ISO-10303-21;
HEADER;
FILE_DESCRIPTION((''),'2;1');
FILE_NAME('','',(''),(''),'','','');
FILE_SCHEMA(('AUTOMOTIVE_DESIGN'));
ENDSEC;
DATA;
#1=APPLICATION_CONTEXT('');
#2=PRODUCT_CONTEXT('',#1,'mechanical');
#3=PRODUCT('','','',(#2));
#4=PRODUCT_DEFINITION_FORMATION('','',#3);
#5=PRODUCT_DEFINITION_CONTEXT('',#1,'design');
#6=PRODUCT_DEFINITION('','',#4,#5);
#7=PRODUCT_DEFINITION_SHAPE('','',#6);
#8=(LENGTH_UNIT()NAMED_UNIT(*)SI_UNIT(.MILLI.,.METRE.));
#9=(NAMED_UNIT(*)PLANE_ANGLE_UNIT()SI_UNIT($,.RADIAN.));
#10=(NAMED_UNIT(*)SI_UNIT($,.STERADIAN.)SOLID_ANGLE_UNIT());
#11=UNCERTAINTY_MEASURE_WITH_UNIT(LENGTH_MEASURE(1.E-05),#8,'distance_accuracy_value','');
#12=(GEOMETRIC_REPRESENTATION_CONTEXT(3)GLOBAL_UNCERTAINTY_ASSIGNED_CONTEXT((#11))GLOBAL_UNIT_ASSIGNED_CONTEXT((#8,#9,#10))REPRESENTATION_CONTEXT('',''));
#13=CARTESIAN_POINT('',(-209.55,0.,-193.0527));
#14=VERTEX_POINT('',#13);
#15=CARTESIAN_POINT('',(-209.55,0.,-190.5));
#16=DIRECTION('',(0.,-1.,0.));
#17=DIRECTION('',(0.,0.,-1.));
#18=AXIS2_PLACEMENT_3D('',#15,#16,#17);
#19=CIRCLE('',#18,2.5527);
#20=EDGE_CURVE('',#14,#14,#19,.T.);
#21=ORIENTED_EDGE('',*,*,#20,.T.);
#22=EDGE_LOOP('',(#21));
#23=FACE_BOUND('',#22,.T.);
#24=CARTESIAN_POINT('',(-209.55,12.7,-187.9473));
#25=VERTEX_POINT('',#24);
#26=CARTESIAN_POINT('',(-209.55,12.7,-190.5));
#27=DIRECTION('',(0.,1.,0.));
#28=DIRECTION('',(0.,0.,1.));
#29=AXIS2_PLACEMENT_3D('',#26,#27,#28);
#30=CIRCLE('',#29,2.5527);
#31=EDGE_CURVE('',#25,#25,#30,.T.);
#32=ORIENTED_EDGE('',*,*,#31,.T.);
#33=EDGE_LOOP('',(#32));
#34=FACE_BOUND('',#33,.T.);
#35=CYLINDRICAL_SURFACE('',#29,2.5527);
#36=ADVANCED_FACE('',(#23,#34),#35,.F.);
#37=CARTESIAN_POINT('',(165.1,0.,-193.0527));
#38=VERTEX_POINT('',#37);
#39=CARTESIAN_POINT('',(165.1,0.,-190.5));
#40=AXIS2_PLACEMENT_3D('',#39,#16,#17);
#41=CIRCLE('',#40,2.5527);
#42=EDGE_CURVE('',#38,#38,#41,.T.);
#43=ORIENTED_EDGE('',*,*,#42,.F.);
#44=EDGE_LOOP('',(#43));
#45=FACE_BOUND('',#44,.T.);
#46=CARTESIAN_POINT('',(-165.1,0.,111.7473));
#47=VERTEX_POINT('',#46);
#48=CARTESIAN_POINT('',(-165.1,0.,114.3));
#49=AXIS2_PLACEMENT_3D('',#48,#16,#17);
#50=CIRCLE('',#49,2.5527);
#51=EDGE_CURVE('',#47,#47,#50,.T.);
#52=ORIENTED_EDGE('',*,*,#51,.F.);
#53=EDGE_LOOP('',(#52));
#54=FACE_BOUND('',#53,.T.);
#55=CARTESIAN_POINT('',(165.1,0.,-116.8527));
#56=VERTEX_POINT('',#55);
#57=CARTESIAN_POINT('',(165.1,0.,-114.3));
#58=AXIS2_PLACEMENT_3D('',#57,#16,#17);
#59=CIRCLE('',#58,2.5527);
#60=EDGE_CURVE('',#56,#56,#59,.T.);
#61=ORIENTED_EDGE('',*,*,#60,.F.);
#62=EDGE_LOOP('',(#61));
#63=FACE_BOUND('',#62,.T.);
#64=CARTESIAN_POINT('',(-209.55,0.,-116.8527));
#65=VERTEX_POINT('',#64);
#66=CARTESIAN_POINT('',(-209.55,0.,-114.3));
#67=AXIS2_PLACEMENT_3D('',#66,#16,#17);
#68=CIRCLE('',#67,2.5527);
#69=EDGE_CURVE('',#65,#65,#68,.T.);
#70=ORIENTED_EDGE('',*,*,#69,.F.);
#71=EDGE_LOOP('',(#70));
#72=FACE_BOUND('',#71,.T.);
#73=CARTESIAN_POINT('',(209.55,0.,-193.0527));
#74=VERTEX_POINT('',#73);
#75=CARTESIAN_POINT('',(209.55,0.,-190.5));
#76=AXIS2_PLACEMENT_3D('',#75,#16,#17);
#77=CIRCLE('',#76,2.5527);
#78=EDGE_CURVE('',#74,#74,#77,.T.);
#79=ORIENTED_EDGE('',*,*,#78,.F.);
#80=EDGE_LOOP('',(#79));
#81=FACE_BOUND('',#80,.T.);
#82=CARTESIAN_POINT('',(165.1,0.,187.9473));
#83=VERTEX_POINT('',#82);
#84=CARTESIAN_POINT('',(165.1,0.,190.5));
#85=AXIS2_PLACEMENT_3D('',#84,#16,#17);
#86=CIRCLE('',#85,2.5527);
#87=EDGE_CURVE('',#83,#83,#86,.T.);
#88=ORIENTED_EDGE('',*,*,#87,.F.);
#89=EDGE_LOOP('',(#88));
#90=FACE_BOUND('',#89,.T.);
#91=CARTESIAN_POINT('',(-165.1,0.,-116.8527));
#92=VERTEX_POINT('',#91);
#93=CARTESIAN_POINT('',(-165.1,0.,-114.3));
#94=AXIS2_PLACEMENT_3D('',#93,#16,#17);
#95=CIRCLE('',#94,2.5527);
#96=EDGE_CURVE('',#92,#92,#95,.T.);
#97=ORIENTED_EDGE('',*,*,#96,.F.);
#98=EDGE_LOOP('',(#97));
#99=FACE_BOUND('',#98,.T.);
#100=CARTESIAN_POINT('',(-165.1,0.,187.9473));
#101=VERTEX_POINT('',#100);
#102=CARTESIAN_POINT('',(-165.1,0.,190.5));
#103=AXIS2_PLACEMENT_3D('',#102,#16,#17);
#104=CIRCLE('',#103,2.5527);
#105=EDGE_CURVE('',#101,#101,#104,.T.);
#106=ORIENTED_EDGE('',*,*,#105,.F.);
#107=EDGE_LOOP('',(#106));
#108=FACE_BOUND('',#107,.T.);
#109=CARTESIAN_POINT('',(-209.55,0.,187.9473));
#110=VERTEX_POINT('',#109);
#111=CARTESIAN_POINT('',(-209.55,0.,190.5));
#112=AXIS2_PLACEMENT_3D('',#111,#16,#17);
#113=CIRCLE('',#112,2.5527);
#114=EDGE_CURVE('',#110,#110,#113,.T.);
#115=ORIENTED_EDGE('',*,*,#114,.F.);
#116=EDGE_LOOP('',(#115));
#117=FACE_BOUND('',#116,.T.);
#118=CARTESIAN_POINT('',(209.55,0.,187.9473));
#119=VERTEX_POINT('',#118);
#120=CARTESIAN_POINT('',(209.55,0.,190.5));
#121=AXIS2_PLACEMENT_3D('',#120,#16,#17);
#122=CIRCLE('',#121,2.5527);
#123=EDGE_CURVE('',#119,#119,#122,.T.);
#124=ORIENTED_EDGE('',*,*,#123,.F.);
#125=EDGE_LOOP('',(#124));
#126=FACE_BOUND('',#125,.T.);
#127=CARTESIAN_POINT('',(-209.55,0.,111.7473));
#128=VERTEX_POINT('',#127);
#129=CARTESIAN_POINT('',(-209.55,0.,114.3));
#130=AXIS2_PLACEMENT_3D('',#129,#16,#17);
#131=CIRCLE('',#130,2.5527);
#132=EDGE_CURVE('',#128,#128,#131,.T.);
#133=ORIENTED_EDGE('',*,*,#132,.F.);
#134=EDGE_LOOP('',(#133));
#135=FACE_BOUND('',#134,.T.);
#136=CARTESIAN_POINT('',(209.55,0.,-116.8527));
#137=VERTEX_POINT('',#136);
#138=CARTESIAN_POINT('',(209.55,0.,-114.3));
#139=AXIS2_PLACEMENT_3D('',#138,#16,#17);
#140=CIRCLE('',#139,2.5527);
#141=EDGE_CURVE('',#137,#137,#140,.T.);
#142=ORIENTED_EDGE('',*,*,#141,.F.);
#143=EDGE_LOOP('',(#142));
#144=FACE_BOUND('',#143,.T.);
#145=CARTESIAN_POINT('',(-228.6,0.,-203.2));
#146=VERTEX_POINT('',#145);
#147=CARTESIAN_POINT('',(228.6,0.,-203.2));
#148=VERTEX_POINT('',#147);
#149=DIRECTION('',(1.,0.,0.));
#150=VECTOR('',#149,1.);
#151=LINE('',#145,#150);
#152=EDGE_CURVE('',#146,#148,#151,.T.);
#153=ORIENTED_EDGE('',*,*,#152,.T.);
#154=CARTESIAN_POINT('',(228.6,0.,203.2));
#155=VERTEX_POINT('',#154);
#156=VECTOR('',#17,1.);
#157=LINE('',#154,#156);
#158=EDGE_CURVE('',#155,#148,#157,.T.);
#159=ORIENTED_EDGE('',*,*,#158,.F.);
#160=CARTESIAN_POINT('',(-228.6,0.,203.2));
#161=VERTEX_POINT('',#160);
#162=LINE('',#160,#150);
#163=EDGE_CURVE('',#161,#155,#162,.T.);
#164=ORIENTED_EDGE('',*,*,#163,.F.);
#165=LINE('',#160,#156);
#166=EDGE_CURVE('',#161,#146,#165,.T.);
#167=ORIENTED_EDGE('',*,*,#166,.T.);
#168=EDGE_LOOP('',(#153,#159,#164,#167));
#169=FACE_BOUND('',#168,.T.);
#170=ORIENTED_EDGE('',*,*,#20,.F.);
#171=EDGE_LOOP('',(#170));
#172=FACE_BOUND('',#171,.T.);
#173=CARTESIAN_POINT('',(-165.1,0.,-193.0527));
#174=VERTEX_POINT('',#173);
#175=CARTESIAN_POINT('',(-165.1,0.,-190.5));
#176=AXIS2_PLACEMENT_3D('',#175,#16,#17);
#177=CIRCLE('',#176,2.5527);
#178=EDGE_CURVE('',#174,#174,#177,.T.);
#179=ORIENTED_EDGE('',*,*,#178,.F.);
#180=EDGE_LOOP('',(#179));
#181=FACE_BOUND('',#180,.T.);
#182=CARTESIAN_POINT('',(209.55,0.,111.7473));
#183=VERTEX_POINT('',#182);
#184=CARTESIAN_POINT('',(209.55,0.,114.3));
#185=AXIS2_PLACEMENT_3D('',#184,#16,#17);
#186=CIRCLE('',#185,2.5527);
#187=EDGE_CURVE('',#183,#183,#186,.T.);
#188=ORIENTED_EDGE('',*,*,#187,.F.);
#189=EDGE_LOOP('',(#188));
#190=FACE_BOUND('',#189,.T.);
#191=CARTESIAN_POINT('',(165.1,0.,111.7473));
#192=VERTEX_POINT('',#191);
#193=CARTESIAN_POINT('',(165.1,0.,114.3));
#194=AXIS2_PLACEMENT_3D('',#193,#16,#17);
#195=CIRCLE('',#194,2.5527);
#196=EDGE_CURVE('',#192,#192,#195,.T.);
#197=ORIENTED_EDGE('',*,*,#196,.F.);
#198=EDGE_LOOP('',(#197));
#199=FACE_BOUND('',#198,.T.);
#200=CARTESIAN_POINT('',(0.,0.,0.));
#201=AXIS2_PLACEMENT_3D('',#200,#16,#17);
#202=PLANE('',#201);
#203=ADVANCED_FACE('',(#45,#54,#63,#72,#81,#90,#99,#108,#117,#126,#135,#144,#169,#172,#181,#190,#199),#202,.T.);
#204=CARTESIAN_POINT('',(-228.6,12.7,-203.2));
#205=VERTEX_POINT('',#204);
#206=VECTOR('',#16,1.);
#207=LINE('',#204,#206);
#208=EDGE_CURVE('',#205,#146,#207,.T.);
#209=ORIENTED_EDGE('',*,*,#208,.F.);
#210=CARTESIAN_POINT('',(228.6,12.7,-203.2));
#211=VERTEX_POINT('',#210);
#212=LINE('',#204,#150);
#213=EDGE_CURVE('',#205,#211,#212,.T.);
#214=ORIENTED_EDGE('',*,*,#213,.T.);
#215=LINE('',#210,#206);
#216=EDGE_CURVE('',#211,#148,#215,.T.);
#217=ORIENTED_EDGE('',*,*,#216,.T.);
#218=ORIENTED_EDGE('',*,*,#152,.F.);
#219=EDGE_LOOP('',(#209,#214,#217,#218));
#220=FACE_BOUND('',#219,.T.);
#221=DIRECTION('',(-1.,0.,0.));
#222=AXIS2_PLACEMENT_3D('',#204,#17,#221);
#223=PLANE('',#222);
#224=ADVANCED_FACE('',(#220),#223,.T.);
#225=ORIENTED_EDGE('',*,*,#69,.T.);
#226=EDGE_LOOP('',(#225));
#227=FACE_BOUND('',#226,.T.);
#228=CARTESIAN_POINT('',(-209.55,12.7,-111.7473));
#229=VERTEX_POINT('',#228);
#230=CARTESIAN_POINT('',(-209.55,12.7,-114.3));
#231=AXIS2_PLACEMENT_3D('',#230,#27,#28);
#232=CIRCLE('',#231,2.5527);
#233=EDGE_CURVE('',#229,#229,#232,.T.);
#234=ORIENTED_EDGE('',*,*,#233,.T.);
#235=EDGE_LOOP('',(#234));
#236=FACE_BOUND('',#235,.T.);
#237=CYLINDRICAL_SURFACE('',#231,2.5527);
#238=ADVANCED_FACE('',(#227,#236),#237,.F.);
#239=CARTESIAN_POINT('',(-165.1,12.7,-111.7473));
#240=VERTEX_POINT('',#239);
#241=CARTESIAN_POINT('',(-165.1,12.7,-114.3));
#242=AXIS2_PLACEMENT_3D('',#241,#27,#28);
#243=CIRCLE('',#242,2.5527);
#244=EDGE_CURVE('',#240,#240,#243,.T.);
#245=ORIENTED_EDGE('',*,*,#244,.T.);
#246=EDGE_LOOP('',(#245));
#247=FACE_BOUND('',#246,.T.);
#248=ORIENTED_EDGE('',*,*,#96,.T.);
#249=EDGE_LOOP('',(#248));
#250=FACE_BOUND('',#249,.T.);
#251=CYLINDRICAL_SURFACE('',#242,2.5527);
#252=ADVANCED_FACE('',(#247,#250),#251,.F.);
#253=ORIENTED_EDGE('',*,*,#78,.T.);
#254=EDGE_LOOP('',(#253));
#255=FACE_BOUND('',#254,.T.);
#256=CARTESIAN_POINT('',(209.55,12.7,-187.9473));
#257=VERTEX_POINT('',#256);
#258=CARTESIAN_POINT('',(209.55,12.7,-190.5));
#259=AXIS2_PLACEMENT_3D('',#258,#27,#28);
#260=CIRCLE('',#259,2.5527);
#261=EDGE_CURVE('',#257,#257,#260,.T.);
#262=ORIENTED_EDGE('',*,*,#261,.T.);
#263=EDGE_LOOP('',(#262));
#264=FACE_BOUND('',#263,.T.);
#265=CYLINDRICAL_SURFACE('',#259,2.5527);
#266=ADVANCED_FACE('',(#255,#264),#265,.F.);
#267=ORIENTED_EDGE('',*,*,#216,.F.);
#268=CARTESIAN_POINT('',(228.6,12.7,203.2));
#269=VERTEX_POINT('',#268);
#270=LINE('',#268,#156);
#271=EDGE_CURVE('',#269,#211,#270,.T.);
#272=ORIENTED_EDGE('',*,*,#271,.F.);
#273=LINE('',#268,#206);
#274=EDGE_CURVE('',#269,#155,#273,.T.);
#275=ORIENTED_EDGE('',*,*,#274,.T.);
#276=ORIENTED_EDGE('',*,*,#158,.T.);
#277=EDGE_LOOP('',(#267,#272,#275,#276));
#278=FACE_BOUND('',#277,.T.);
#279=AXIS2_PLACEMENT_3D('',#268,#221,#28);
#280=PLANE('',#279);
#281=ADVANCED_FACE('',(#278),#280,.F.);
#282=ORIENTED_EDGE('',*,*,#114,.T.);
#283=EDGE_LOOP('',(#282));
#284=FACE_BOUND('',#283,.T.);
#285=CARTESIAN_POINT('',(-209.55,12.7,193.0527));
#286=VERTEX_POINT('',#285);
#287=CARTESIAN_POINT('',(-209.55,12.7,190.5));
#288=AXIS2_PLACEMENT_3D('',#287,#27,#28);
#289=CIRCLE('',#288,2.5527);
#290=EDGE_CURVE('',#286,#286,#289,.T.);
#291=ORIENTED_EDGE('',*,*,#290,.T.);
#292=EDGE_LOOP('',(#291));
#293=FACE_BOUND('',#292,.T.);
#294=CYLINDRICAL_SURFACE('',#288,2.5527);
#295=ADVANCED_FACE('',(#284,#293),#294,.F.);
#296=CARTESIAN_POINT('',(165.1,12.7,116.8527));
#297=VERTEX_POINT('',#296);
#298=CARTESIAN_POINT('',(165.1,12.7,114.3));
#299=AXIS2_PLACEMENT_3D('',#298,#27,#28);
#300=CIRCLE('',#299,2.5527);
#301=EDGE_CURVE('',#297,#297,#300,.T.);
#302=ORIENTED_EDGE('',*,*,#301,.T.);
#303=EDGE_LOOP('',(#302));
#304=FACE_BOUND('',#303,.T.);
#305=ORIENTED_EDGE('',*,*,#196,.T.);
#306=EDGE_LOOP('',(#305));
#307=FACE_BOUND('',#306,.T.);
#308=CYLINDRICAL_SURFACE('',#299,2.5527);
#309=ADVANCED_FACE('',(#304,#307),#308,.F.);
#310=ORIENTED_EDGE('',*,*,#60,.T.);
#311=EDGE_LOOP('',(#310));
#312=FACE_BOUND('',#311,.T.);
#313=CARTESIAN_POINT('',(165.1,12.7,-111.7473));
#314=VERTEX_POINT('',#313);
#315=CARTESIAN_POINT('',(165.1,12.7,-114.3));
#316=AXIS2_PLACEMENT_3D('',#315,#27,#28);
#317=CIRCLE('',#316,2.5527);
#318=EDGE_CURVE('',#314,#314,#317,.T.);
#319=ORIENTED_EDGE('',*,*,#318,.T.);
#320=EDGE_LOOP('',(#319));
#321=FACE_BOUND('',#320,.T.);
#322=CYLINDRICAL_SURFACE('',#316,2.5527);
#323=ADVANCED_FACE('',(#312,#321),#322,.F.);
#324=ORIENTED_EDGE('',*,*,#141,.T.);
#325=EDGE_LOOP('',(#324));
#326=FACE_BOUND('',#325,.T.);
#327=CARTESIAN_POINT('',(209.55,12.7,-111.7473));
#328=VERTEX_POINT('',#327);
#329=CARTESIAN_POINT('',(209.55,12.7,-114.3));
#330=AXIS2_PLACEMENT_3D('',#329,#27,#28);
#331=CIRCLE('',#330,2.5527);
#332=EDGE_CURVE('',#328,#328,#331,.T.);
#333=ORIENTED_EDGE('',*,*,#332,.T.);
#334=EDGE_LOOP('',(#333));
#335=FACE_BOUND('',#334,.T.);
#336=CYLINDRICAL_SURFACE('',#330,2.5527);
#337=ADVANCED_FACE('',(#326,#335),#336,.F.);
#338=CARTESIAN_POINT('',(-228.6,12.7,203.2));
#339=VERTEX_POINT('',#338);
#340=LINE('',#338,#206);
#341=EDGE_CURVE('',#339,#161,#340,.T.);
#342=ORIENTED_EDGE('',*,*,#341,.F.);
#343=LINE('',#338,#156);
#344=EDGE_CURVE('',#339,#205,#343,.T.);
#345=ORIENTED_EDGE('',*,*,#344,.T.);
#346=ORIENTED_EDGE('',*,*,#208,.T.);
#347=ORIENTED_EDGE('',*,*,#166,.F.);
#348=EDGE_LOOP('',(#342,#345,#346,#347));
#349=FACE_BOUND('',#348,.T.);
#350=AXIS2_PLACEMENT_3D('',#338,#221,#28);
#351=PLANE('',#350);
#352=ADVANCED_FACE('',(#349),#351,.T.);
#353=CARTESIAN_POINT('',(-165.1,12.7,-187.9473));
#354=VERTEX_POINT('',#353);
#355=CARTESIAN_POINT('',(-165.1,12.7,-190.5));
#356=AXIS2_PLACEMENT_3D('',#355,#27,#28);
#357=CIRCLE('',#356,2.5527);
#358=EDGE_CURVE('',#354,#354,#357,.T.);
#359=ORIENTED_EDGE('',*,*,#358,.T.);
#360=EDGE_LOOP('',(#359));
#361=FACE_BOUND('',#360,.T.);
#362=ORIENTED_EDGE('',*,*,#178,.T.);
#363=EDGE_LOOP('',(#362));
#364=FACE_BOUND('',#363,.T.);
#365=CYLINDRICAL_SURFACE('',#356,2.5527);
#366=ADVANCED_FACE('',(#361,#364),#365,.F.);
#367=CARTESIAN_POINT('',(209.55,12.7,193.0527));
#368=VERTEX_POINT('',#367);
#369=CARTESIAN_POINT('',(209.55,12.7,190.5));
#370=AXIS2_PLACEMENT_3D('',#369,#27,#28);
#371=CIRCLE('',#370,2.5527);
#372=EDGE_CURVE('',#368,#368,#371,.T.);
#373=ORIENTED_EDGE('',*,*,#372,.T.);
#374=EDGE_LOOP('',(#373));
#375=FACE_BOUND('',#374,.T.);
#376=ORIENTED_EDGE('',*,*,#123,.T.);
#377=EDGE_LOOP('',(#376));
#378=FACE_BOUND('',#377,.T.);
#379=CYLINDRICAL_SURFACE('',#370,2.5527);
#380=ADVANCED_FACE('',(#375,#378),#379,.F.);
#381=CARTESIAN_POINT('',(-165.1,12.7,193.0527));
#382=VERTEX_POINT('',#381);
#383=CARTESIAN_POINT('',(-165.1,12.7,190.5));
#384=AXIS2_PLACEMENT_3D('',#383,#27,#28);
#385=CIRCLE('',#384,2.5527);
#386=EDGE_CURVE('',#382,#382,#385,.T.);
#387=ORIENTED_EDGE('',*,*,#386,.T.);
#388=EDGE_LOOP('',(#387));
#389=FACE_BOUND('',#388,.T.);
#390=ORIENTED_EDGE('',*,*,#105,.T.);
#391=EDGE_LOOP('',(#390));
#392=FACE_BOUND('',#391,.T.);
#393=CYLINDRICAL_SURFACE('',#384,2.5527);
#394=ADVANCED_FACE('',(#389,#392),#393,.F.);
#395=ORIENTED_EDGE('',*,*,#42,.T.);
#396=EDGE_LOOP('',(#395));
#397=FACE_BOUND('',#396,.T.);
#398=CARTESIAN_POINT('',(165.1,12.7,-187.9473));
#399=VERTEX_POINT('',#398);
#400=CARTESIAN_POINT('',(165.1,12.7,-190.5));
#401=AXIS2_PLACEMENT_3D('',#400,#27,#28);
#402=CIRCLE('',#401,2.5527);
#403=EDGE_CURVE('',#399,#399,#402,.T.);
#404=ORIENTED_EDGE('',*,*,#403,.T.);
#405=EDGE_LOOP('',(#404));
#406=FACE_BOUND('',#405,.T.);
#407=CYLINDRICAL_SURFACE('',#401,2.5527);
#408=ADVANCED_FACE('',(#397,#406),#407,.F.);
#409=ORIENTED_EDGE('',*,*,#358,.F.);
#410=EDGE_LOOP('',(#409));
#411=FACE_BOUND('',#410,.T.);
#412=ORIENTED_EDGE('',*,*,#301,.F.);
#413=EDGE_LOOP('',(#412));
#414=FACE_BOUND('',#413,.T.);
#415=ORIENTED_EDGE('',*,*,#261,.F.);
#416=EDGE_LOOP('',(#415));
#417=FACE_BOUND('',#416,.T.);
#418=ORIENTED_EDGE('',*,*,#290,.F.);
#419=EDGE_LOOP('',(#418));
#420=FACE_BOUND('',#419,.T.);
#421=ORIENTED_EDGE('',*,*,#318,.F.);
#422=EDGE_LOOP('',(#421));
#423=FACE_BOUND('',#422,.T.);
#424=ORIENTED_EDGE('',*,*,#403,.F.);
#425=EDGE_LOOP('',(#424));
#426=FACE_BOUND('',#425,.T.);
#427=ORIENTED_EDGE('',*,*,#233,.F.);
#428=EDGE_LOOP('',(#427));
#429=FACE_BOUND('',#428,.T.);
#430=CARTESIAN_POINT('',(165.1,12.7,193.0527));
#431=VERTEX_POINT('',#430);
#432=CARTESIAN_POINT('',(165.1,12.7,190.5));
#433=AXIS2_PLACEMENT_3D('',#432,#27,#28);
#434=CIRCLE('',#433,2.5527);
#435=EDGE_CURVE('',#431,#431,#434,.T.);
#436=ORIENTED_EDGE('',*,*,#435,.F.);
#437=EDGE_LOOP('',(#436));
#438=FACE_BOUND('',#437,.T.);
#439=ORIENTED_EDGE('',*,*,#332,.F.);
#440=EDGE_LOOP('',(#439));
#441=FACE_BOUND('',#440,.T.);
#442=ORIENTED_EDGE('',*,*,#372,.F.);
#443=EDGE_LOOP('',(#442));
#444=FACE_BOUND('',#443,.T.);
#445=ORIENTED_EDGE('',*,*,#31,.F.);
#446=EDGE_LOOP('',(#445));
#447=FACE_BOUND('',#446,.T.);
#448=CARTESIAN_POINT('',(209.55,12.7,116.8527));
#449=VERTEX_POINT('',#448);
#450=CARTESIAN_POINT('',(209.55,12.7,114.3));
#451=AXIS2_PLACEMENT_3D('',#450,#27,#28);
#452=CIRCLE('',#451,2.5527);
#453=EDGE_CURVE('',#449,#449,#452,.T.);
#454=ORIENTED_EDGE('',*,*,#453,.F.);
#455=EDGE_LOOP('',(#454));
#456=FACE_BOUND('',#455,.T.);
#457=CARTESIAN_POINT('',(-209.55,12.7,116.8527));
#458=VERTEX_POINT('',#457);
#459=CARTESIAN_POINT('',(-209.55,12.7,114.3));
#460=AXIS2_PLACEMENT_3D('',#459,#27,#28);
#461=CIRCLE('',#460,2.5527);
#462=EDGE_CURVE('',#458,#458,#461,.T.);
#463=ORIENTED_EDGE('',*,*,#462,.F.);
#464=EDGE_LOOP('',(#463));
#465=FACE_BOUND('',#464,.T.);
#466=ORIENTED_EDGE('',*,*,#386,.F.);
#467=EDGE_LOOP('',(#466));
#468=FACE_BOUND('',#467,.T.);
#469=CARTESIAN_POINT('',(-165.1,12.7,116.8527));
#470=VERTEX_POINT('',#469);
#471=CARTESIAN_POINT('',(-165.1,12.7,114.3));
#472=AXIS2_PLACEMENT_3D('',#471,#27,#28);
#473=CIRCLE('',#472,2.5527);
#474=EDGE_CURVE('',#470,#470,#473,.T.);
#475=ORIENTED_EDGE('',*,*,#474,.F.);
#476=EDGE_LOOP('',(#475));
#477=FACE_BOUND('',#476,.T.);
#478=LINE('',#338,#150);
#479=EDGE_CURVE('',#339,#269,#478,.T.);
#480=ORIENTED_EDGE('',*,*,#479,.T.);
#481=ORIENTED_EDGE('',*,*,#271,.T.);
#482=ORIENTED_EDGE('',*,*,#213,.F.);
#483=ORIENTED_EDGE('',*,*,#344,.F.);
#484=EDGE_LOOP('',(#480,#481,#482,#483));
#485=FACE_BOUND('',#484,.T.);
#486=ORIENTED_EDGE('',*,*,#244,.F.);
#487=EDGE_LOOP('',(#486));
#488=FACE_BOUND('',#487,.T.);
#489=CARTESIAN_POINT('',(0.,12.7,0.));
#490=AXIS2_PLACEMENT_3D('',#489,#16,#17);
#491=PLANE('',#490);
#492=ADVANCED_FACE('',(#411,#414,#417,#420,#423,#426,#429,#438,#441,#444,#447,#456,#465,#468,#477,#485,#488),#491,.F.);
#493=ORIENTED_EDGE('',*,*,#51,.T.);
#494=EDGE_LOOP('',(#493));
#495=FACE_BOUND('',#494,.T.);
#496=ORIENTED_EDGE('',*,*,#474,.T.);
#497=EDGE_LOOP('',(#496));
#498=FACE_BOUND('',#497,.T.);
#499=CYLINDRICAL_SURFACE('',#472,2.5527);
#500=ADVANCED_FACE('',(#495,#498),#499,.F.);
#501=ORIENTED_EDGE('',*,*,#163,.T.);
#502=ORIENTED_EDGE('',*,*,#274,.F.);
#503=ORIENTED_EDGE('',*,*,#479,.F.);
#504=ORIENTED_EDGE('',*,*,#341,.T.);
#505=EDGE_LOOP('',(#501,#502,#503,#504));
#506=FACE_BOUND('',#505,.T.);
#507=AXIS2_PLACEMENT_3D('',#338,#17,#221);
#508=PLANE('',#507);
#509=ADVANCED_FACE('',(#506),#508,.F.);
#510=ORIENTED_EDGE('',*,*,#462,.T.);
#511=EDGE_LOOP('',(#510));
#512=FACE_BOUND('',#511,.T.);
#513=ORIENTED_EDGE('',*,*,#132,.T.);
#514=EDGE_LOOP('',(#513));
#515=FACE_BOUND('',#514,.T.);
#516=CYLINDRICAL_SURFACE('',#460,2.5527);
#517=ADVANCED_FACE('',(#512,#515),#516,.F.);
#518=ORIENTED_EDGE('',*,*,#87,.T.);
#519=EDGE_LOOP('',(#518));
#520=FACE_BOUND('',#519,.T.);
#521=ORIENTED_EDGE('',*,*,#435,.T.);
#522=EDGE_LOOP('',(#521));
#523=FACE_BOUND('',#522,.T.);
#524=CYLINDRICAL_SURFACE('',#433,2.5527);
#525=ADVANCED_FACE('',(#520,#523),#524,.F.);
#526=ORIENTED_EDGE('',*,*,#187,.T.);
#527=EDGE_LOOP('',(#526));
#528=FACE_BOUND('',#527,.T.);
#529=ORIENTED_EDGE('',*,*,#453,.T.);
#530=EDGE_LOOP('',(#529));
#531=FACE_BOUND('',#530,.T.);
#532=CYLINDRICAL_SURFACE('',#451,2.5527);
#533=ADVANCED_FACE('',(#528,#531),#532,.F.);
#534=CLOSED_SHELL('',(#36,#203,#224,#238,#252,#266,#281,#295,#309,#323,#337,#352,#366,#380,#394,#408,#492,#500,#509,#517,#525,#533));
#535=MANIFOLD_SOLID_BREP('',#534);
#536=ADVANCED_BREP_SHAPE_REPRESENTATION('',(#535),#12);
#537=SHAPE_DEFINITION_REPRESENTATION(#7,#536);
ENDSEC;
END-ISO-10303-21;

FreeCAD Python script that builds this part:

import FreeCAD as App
import Part
import Sketcher
Q = App.Units.Quantity

doc = App.newDocument("Part")
body = doc.addObject("PartDesign::Body", "Body")

# Sketch on XZ plane
sketch1 = doc.addObject("Sketcher::SketchObject", "Sketch")
body.addObject(sketch1)
sketch1.AttachmentSupport = (doc.XZ_Plane, [""])
sketch1.MapMode = "FlatFace"
sketch1.addGeometry([
    Part.LineSegment(App.Vector(-228.6, -203.2, 0), App.Vector(-228.6, 203.2, 0)),
    Part.LineSegment(App.Vector(-228.6, 203.2, 0), App.Vector(228.6, 203.2, 0)),
    Part.LineSegment(App.Vector(228.6, 203.2, 0), App.Vector(228.6, -203.2, 0)),
    Part.LineSegment(App.Vector(228.6, -203.2, 0), App.Vector(-228.6, -203.2, 0)),
], False)
sketch1.addConstraint([
    Sketcher.Constraint("Coincident", 0, 2, 1, 1),
    Sketcher.Constraint("Coincident", 1, 2, 2, 1),
    Sketcher.Constraint("Coincident", 2, 2, 3, 1),
    Sketcher.Constraint("Coincident", 3, 2, 0, 1),
    Sketcher.Constraint("Vertical", 0),
    Sketcher.Constraint("Horizontal", 1),
    Sketcher.Constraint("Vertical", 2),
    Sketcher.Constraint("Horizontal", 3),
    Sketcher.Constraint("Symmetric", 0, 2, 2, 2, -1, 1),
    Sketcher.Constraint("DistanceX", 1, 1, 1, 2, Q("18 in")),
    Sketcher.Constraint("DistanceY", 0, 1, 0, 2, Q("16 in")),
])
pad1 = doc.addObject("PartDesign::Pad", "Pad")
body.addObject(pad1)
pad1.Profile = sketch1
pad1.Length = Q("0.5 in")
pad1.Reversed = True

# Sketch on YZ plane
sketch2 = doc.addObject("Sketcher::SketchObject", "Sketch001")
body.addObject(sketch2)
sketch2.AttachmentSupport = (doc.YZ_Plane, [""])
sketch2.MapMode = "FlatFace"
sketch2.AttachmentOffset = App.Placement(App.Vector(0, 0, -8.25 * 25.4), App.Rotation())
sketch2.addGeometry([
    Part.LineSegment(App.Vector(-5.343817, 190.5, 0), App.Vector(12.7, 190.5, 0)),
    Part.LineSegment(App.Vector(12.7, 190.5, 0), App.Vector(12.7, 193.0527, 0)),
    Part.LineSegment(App.Vector(12.7, 193.0527, 0), App.Vector(-3.81, 193.0527, 0)),
    Part.LineSegment(App.Vector(-3.81, 193.0527, 0), App.Vector(-5.343817, 190.5, 0)),
], False)
sketch2.addGeometry(Part.LineSegment(App.Vector(12.7, 190.5, 0), App.Vector(-5.343817, 190.5, 0)), True)  # axis
sketch2.addConstraint([
    Sketcher.Constraint("Coincident", 0, 2, 1, 1),
    Sketcher.Constraint("Coincident", 1, 2, 2, 1),
    Sketcher.Constraint("Coincident", 2, 2, 3, 1),
    Sketcher.Constraint("Coincident", 3, 2, 0, 1),
    Sketcher.Constraint("Horizontal", 0),
    Sketcher.Constraint("Vertical", 1),
    Sketcher.Constraint("Horizontal", 2),
    Sketcher.Constraint("Horizontal", 4),
    Sketcher.Constraint("Coincident", 4, 1, 0, 2),
    Sketcher.Constraint("Equal", 0, 4),
    Sketcher.Constraint("Angle", 3, Q("-121 deg")),
    Sketcher.Constraint("DistanceX", 2, 2, 2, 1, Q("0.65 in")),
    Sketcher.Constraint("DistanceX", -1, 1, 0, 2, Q("0.5 in")),
    Sketcher.Constraint("DistanceY", -1, 1, 0, 2, Q("7.5 in")),
    Sketcher.Constraint("DistanceY", 1, 1, 1, 2, Q("0.1005 in")),
])
groove = doc.addObject("PartDesign::Groove", "Groove")
body.addObject(groove)
groove.Profile = sketch2
groove.ReferenceAxis = (sketch2, ["Axis0"])
groove.Angle = 360
doc.recompute()

linearpattern = doc.addObject("PartDesign::LinearPattern", "LinearPattern")
body.addObject(linearpattern)
linearpattern.Originals = [groove]
linearpattern.Direction = (doc.Z_Axis, [""])
linearpattern.Mode = "offset"
linearpattern.Offset = Q("3 in")
linearpattern.Occurrences = 2
linearpattern.Reversed = True
body.Tip = linearpattern
doc.recompute()

datumline = doc.addObject("PartDesign::Line", "DatumLine")
body.addObject(datumline)
datumline.Placement = App.Placement(App.Vector(0, 0, 0), App.Rotation(App.Vector(0, 0, 1), App.Vector(0.503871026, 0, -0.863778901)))
linearpattern2 = doc.addObject("PartDesign::LinearPattern", "LinearPattern001")
body.addObject(linearpattern2)
linearpattern2.Originals = [groove]
linearpattern2.Direction = (datumline, [""])
linearpattern2.Mode = "offset"
linearpattern2.Offset = 88.217019
linearpattern2.Occurrences = 2
body.Tip = linearpattern2
doc.recompute()

linearpattern3 = doc.addObject("PartDesign::LinearPattern", "LinearPattern002")
body.addObject(linearpattern3)
linearpattern3.Originals = [groove]
linearpattern3.Direction = (doc.X_Axis, [""])
linearpattern3.Mode = "offset"
linearpattern3.Offset = Q("1.75 in")
linearpattern3.Occurrences = 2
body.Tip = linearpattern3
doc.recompute()

mirrored = doc.addObject("PartDesign::Mirrored", "Mirrored")
body.addObject(mirrored)
mirrored.Originals = [groove]
mirrored.MirrorPlane = (doc.YZ_Plane, [""])
body.Tip = mirrored

# Sketch on YZ plane
sketch3 = doc.addObject("Sketcher::SketchObject", "Sketch002")
body.addObject(sketch3)
sketch3.AttachmentSupport = (doc.YZ_Plane, [""])
sketch3.MapMode = "FlatFace"
sketch3.AttachmentOffset = App.Placement(App.Vector(0, 0, 8.25 * 25.4), App.Rotation())
sketch3.addGeometry([
    Part.LineSegment(App.Vector(12.7, 114.3, 0), App.Vector(-5.343817, 114.3, 0)),
    Part.LineSegment(App.Vector(-5.343817, 114.3, 0), App.Vector(-3.81, 116.8527, 0)),
    Part.LineSegment(App.Vector(-3.81, 116.8527, 0), App.Vector(12.7, 116.8527, 0)),
    Part.LineSegment(App.Vector(12.7, 116.8527, 0), App.Vector(12.7, 114.3, 0)),
], False)
sketch3.addGeometry(Part.LineSegment(App.Vector(-5.343817, 114.3, 0), App.Vector(12.7, 114.3, 0)), True)  # axis
sketch3.addConstraint([
    Sketcher.Constraint("Coincident", 0, 2, 1, 1),
    Sketcher.Constraint("Coincident", 1, 2, 2, 1),
    Sketcher.Constraint("Coincident", 2, 2, 3, 1),
    Sketcher.Constraint("Coincident", 3, 2, 0, 1),
    Sketcher.Constraint("Horizontal", 0),
    Sketcher.Constraint("Horizontal", 2),
    Sketcher.Constraint("Vertical", 3),
    Sketcher.Constraint("Horizontal", 4),
    Sketcher.Constraint("Coincident", 4, 1, 0, 2),
    Sketcher.Constraint("Vertical", 2, 2, 4, 2),
    Sketcher.Constraint("Angle", 1, Q("59 deg")),
    Sketcher.Constraint("DistanceX", 2, 1, 2, 2, Q("0.65 in")),
    Sketcher.Constraint("DistanceY", -1, 1, 0, 2, Q("4.5 in")),
    Sketcher.Constraint("DistanceX", -1, 1, 2, 2, Q("0.5 in")),
    Sketcher.Constraint("DistanceY", 3, 2, 3, 1, Q("0.1005 in")),
])
groove2 = doc.addObject("PartDesign::Groove", "Groove001")
body.addObject(groove2)
groove2.Profile = sketch3
groove2.ReferenceAxis = (sketch3, ["Axis0"])
groove2.Angle = 360

# Sketch on YZ plane
sketch4 = doc.addObject("Sketcher::SketchObject", "Sketch003")
body.addObject(sketch4)
sketch4.AttachmentSupport = (doc.YZ_Plane, [""])
sketch4.MapMode = "FlatFace"
sketch4.AttachmentOffset = App.Placement(App.Vector(0, 0, 6.5 * 25.4), App.Rotation())
sketch4.addGeometry([
    Part.LineSegment(App.Vector(12.7, 114.3, 0), App.Vector(-5.343817, 114.3, 0)),
    Part.LineSegment(App.Vector(-5.343817, 114.3, 0), App.Vector(-3.81, 116.8527, 0)),
    Part.LineSegment(App.Vector(-3.81, 116.8527, 0), App.Vector(12.7, 116.8527, 0)),
    Part.LineSegment(App.Vector(12.7, 116.8527, 0), App.Vector(12.7, 114.3, 0)),
], False)
sketch4.addGeometry(Part.LineSegment(App.Vector(-5.343817, 114.3, 0), App.Vector(12.7, 114.3, 0)), True)  # axis
sketch4.addConstraint([
    Sketcher.Constraint("Coincident", 0, 2, 1, 1),
    Sketcher.Constraint("Coincident", 1, 2, 2, 1),
    Sketcher.Constraint("Coincident", 2, 2, 3, 1),
    Sketcher.Constraint("Coincident", 3, 2, 0, 1),
    Sketcher.Constraint("Horizontal", 0),
    Sketcher.Constraint("Horizontal", 2),
    Sketcher.Constraint("Vertical", 3),
    Sketcher.Constraint("Horizontal", 4),
    Sketcher.Constraint("Coincident", 4, 1, 0, 2),
    Sketcher.Constraint("Vertical", 2, 2, 4, 2),
    Sketcher.Constraint("Angle", 1, Q("59 deg")),
    Sketcher.Constraint("DistanceX", 2, 1, 2, 2, Q("0.65 in")),
    Sketcher.Constraint("DistanceY", -1, 1, 0, 2, Q("4.5 in")),
    Sketcher.Constraint("DistanceX", -1, 1, 2, 2, Q("0.5 in")),
    Sketcher.Constraint("DistanceY", 3, 2, 3, 1, Q("0.1005 in")),
])
groove3 = doc.addObject("PartDesign::Groove", "Groove002")
body.addObject(groove3)
groove3.Profile = sketch4
groove3.ReferenceAxis = (sketch4, ["Axis0"])
groove3.Angle = 360

# Sketch on YZ plane
sketch5 = doc.addObject("Sketcher::SketchObject", "Sketch004")
body.addObject(sketch5)
sketch5.AttachmentSupport = (doc.YZ_Plane, [""])
sketch5.MapMode = "FlatFace"
sketch5.AttachmentOffset = App.Placement(App.Vector(0, 0, 6.5 * 25.4), App.Rotation())
sketch5.addGeometry([
    Part.LineSegment(App.Vector(12.7, 190.5, 0), App.Vector(-5.343817, 190.5, 0)),
    Part.LineSegment(App.Vector(-5.343817, 190.5, 0), App.Vector(-3.81, 193.0527, 0)),
    Part.LineSegment(App.Vector(-3.81, 193.0527, 0), App.Vector(12.7, 193.0527, 0)),
    Part.LineSegment(App.Vector(12.7, 193.0527, 0), App.Vector(12.7, 190.5, 0)),
], False)
sketch5.addGeometry(Part.LineSegment(App.Vector(-5.343817, 190.5, 0), App.Vector(12.7, 190.5, 0)), True)  # axis
sketch5.addConstraint([
    Sketcher.Constraint("Coincident", 0, 2, 1, 1),
    Sketcher.Constraint("Coincident", 1, 2, 2, 1),
    Sketcher.Constraint("Coincident", 2, 2, 3, 1),
    Sketcher.Constraint("Coincident", 3, 2, 0, 1),
    Sketcher.Constraint("Horizontal", 0),
    Sketcher.Constraint("Horizontal", 2),
    Sketcher.Constraint("Vertical", 3),
    Sketcher.Constraint("Horizontal", 4),
    Sketcher.Constraint("Coincident", 4, 1, 0, 2),
    Sketcher.Constraint("Vertical", 2, 2, 4, 2),
    Sketcher.Constraint("Angle", 1, Q("59 deg")),
    Sketcher.Constraint("DistanceX", 2, 1, 2, 2, Q("0.65 in")),
    Sketcher.Constraint("DistanceY", -1, 1, 0, 2, Q("7.5 in")),
    Sketcher.Constraint("DistanceX", -1, 1, 2, 2, Q("0.5 in")),
    Sketcher.Constraint("DistanceY", 3, 2, 3, 1, Q("0.1005 in")),
])
groove4 = doc.addObject("PartDesign::Groove", "Groove003")
body.addObject(groove4)
groove4.Profile = sketch5
groove4.ReferenceAxis = (sketch5, ["Axis0"])
groove4.Angle = 360
doc.recompute()

mirrored2 = doc.addObject("PartDesign::Mirrored", "Mirrored001")
body.addObject(mirrored2)
mirrored2.Originals = [groove]
mirrored2.MirrorPlane = (doc.XY_Plane, [""])
body.Tip = mirrored2

# Sketch on YZ plane
sketch6 = doc.addObject("Sketcher::SketchObject", "Sketch005")
body.addObject(sketch6)
sketch6.AttachmentSupport = (doc.YZ_Plane, [""])
sketch6.MapMode = "FlatFace"
sketch6.AttachmentOffset = App.Placement(App.Vector(0, 0, -8.25 * 25.4), App.Rotation())
sketch6.addGeometry([
    Part.LineSegment(App.Vector(12.7, -114.3, 0), App.Vector(-5.343817, -114.3, 0)),
    Part.LineSegment(App.Vector(-5.343817, -114.3, 0), App.Vector(-3.81, -116.8527, 0)),
    Part.LineSegment(App.Vector(-3.81, -116.8527, 0), App.Vector(12.7, -116.8527, 0)),
    Part.LineSegment(App.Vector(12.7, -116.8527, 0), App.Vector(12.7, -114.3, 0)),
], False)
sketch6.addGeometry(Part.LineSegment(App.Vector(-5.343817, -114.3, 0), App.Vector(12.7, -114.3, 0)), True)  # axis
sketch6.addConstraint([
    Sketcher.Constraint("Coincident", 0, 2, 1, 1),
    Sketcher.Constraint("Coincident", 1, 2, 2, 1),
    Sketcher.Constraint("Coincident", 2, 2, 3, 1),
    Sketcher.Constraint("Coincident", 3, 2, 0, 1),
    Sketcher.Constraint("Horizontal", 0),
    Sketcher.Constraint("Horizontal", 2),
    Sketcher.Constraint("Vertical", 3),
    Sketcher.Constraint("Horizontal", 4),
    Sketcher.Constraint("Coincident", 4, 1, 0, 2),
    Sketcher.Constraint("Vertical", 2, 2, 4, 2),
    Sketcher.Constraint("Angle", 1, Q("-59 deg")),
    Sketcher.Constraint("DistanceX", 2, 1, 2, 2, Q("0.65 in")),
    Sketcher.Constraint("DistanceY", 0, 2, -1, 1, Q("4.5 in")),
    Sketcher.Constraint("DistanceX", -1, 1, 2, 2, Q("0.5 in")),
    Sketcher.Constraint("DistanceY", 3, 1, 3, 2, Q("0.1005 in")),
])
groove5 = doc.addObject("PartDesign::Groove", "Groove004")
body.addObject(groove5)
groove5.Profile = sketch6
groove5.ReferenceAxis = (sketch6, ["Axis0"])
groove5.Angle = 360

# Sketch on YZ plane
sketch7 = doc.addObject("Sketcher::SketchObject", "Sketch006")
body.addObject(sketch7)
sketch7.AttachmentSupport = (doc.YZ_Plane, [""])
sketch7.MapMode = "FlatFace"
sketch7.AttachmentOffset = App.Placement(App.Vector(0, 0, -6.5 * 25.4), App.Rotation())
sketch7.addGeometry([
    Part.LineSegment(App.Vector(12.7, -114.3, 0), App.Vector(-5.343817, -114.3, 0)),
    Part.LineSegment(App.Vector(-5.343817, -114.3, 0), App.Vector(-3.81, -116.8527, 0)),
    Part.LineSegment(App.Vector(-3.81, -116.8527, 0), App.Vector(12.7, -116.8527, 0)),
    Part.LineSegment(App.Vector(12.7, -116.8527, 0), App.Vector(12.7, -114.3, 0)),
], False)
sketch7.addGeometry(Part.LineSegment(App.Vector(-5.343817, -114.3, 0), App.Vector(12.7, -114.3, 0)), True)  # axis
sketch7.addConstraint([
    Sketcher.Constraint("Coincident", 0, 2, 1, 1),
    Sketcher.Constraint("Coincident", 1, 2, 2, 1),
    Sketcher.Constraint("Coincident", 2, 2, 3, 1),
    Sketcher.Constraint("Coincident", 3, 2, 0, 1),
    Sketcher.Constraint("Horizontal", 0),
    Sketcher.Constraint("Horizontal", 2),
    Sketcher.Constraint("Vertical", 3),
    Sketcher.Constraint("Horizontal", 4),
    Sketcher.Constraint("Coincident", 4, 1, 0, 2),
    Sketcher.Constraint("Vertical", 2, 2, 4, 2),
    Sketcher.Constraint("Angle", 1, Q("-59 deg")),
    Sketcher.Constraint("DistanceX", 2, 1, 2, 2, Q("0.65 in")),
    Sketcher.Constraint("DistanceY", 0, 2, -1, 1, Q("4.5 in")),
    Sketcher.Constraint("DistanceX", -1, 1, 2, 2, Q("0.5 in")),
    Sketcher.Constraint("DistanceY", 3, 1, 3, 2, Q("0.1005 in")),
])
groove6 = doc.addObject("PartDesign::Groove", "Groove005")
body.addObject(groove6)
groove6.Profile = sketch7
groove6.ReferenceAxis = (sketch7, ["Axis0"])
groove6.Angle = 360

# Sketch on YZ plane
sketch8 = doc.addObject("Sketcher::SketchObject", "Sketch007")
body.addObject(sketch8)
sketch8.AttachmentSupport = (doc.YZ_Plane, [""])
sketch8.MapMode = "FlatFace"
sketch8.AttachmentOffset = App.Placement(App.Vector(0, 0, -6.5 * 25.4), App.Rotation())
sketch8.addGeometry([
    Part.LineSegment(App.Vector(12.7, -190.5, 0), App.Vector(-5.343817, -190.5, 0)),
    Part.LineSegment(App.Vector(-5.343817, -190.5, 0), App.Vector(-3.81, -193.0527, 0)),
    Part.LineSegment(App.Vector(-3.81, -193.0527, 0), App.Vector(12.7, -193.0527, 0)),
    Part.LineSegment(App.Vector(12.7, -193.0527, 0), App.Vector(12.7, -190.5, 0)),
], False)
sketch8.addGeometry(Part.LineSegment(App.Vector(-5.343817, -190.5, 0), App.Vector(12.7, -190.5, 0)), True)  # axis
sketch8.addConstraint([
    Sketcher.Constraint("Coincident", 0, 2, 1, 1),
    Sketcher.Constraint("Coincident", 1, 2, 2, 1),
    Sketcher.Constraint("Coincident", 2, 2, 3, 1),
    Sketcher.Constraint("Coincident", 3, 2, 0, 1),
    Sketcher.Constraint("Horizontal", 0),
    Sketcher.Constraint("Horizontal", 2),
    Sketcher.Constraint("Vertical", 3),
    Sketcher.Constraint("Horizontal", 4),
    Sketcher.Constraint("Coincident", 4, 1, 0, 2),
    Sketcher.Constraint("Vertical", 2, 2, 4, 2),
    Sketcher.Constraint("Angle", 1, Q("-59 deg")),
    Sketcher.Constraint("DistanceX", 2, 1, 2, 2, Q("0.65 in")),
    Sketcher.Constraint("DistanceY", 0, 2, -1, 1, Q("7.5 in")),
    Sketcher.Constraint("DistanceX", -1, 1, 2, 2, Q("0.5 in")),
    Sketcher.Constraint("DistanceY", 3, 1, 3, 2, Q("0.1005 in")),
])
groove7 = doc.addObject("PartDesign::Groove", "Groove006")
body.addObject(groove7)
groove7.Profile = sketch8
groove7.ReferenceAxis = (sketch8, ["Axis0"])
groove7.Angle = 360

# Sketch on YZ plane
sketch9 = doc.addObject("Sketcher::SketchObject", "Sketch008")
body.addObject(sketch9)
sketch9.AttachmentSupport = (doc.YZ_Plane, [""])
sketch9.MapMode = "FlatFace"
sketch9.AttachmentOffset = App.Placement(App.Vector(0, 0, 8.25 * 25.4), App.Rotation())
sketch9.addGeometry([
    Part.LineSegment(App.Vector(-5.343817, -190.5, 0), App.Vector(12.7, -190.5, 0)),
    Part.LineSegment(App.Vector(12.7, -190.5, 0), App.Vector(12.7, -193.0527, 0)),
    Part.LineSegment(App.Vector(12.7, -193.0527, 0), App.Vector(-3.81, -193.0527, 0)),
    Part.LineSegment(App.Vector(-3.81, -193.0527, 0), App.Vector(-5.343817, -190.5, 0)),
], False)
sketch9.addGeometry(Part.LineSegment(App.Vector(12.7, -190.5, 0), App.Vector(-5.343817, -190.5, 0)), True)  # axis
sketch9.addConstraint([
    Sketcher.Constraint("Coincident", 0, 2, 1, 1),
    Sketcher.Constraint("Coincident", 1, 2, 2, 1),
    Sketcher.Constraint("Coincident", 2, 2, 3, 1),
    Sketcher.Constraint("Coincident", 3, 2, 0, 1),
    Sketcher.Constraint("Horizontal", 0),
    Sketcher.Constraint("Vertical", 1),
    Sketcher.Constraint("Horizontal", 2),
    Sketcher.Constraint("Horizontal", 4),
    Sketcher.Constraint("Coincident", 4, 1, 0, 2),
    Sketcher.Constraint("Equal", 0, 4),
    Sketcher.Constraint("Angle", 3, Q("121 deg")),
    Sketcher.Constraint("DistanceX", 2, 2, 2, 1, Q("0.65 in")),
    Sketcher.Constraint("DistanceX", -1, 1, 0, 2, Q("0.5 in")),
    Sketcher.Constraint("DistanceY", 0, 2, -1, 1, Q("7.5 in")),
    Sketcher.Constraint("DistanceY", 1, 2, 1, 1, Q("0.1005 in")),
])
groove8 = doc.addObject("PartDesign::Groove", "Groove007")
body.addObject(groove8)
groove8.Profile = sketch9
groove8.ReferenceAxis = (sketch9, ["Axis0"])
groove8.Angle = 360

# Sketch on YZ plane
sketch10 = doc.addObject("Sketcher::SketchObject", "Sketch009")
body.addObject(sketch10)
sketch10.AttachmentSupport = (doc.YZ_Plane, [""])
sketch10.MapMode = "FlatFace"
sketch10.AttachmentOffset = App.Placement(App.Vector(0, 0, 8.25 * 25.4), App.Rotation())
sketch10.addGeometry([
    Part.LineSegment(App.Vector(-5.343817, -114.3, 0), App.Vector(12.7, -114.3, 0)),
    Part.LineSegment(App.Vector(12.7, -114.3, 0), App.Vector(12.7, -116.8527, 0)),
    Part.LineSegment(App.Vector(12.7, -116.8527, 0), App.Vector(-3.81, -116.8527, 0)),
    Part.LineSegment(App.Vector(-3.81, -116.8527, 0), App.Vector(-5.343817, -114.3, 0)),
], False)
sketch10.addGeometry(Part.LineSegment(App.Vector(12.7, -114.3, 0), App.Vector(-5.343817, -114.3, 0)), True)  # axis
sketch10.addConstraint([
    Sketcher.Constraint("Coincident", 0, 2, 1, 1),
    Sketcher.Constraint("Coincident", 1, 2, 2, 1),
    Sketcher.Constraint("Coincident", 2, 2, 3, 1),
    Sketcher.Constraint("Coincident", 3, 2, 0, 1),
    Sketcher.Constraint("Horizontal", 0),
    Sketcher.Constraint("Vertical", 1),
    Sketcher.Constraint("Horizontal", 2),
    Sketcher.Constraint("Horizontal", 4),
    Sketcher.Constraint("Coincident", 4, 1, 0, 2),
    Sketcher.Constraint("Equal", 0, 4),
    Sketcher.Constraint("Angle", 3, Q("121 deg")),
    Sketcher.Constraint("DistanceX", 2, 2, 2, 1, Q("0.65 in")),
    Sketcher.Constraint("DistanceX", -1, 1, 0, 2, Q("0.5 in")),
    Sketcher.Constraint("DistanceY", 0, 2, -1, 1, Q("4.5 in")),
    Sketcher.Constraint("DistanceY", 1, 2, 1, 1, Q("0.1005 in")),
])
groove9 = doc.addObject("PartDesign::Groove", "Groove008")
body.addObject(groove9)
groove9.Profile = sketch10
groove9.ReferenceAxis = (sketch10, ["Axis0"])
groove9.Angle = 360

# Sketch on YZ plane
sketch11 = doc.addObject("Sketcher::SketchObject", "Sketch010")
body.addObject(sketch11)
sketch11.AttachmentSupport = (doc.YZ_Plane, [""])
sketch11.MapMode = "FlatFace"
sketch11.AttachmentOffset = App.Placement(App.Vector(0, 0, 6.5 * 25.4), App.Rotation())
sketch11.addGeometry([
    Part.LineSegment(App.Vector(-5.343817, -114.3, 0), App.Vector(12.7, -114.3, 0)),
    Part.LineSegment(App.Vector(12.7, -114.3, 0), App.Vector(12.7, -116.8527, 0)),
    Part.LineSegment(App.Vector(12.7, -116.8527, 0), App.Vector(-3.81, -116.8527, 0)),
    Part.LineSegment(App.Vector(-3.81, -116.8527, 0), App.Vector(-5.343817, -114.3, 0)),
], False)
sketch11.addGeometry(Part.LineSegment(App.Vector(12.7, -114.3, 0), App.Vector(-5.343817, -114.3, 0)), True)  # axis
sketch11.addConstraint([
    Sketcher.Constraint("Coincident", 0, 2, 1, 1),
    Sketcher.Constraint("Coincident", 1, 2, 2, 1),
    Sketcher.Constraint("Coincident", 2, 2, 3, 1),
    Sketcher.Constraint("Coincident", 3, 2, 0, 1),
    Sketcher.Constraint("Horizontal", 0),
    Sketcher.Constraint("Vertical", 1),
    Sketcher.Constraint("Horizontal", 2),
    Sketcher.Constraint("Horizontal", 4),
    Sketcher.Constraint("Coincident", 4, 1, 0, 2),
    Sketcher.Constraint("Equal", 0, 4),
    Sketcher.Constraint("Angle", 3, Q("121 deg")),
    Sketcher.Constraint("DistanceX", 2, 2, 2, 1, Q("0.65 in")),
    Sketcher.Constraint("DistanceX", -1, 1, 0, 2, Q("0.5 in")),
    Sketcher.Constraint("DistanceY", 0, 2, -1, 1, Q("4.5 in")),
    Sketcher.Constraint("DistanceY", 1, 2, 1, 1, Q("0.1005 in")),
])
groove10 = doc.addObject("PartDesign::Groove", "Groove009")
body.addObject(groove10)
groove10.Profile = sketch11
groove10.ReferenceAxis = (sketch11, ["Axis0"])
groove10.Angle = 360

# Sketch on YZ plane
sketch12 = doc.addObject("Sketcher::SketchObject", "Sketch011")
body.addObject(sketch12)
sketch12.AttachmentSupport = (doc.YZ_Plane, [""])
sketch12.MapMode = "FlatFace"
sketch12.AttachmentOffset = App.Placement(App.Vector(0, 0, 6.5 * 25.4), App.Rotation())
sketch12.addGeometry([
    Part.LineSegment(App.Vector(-5.343817, -190.5, 0), App.Vector(12.7, -190.5, 0)),
    Part.LineSegment(App.Vector(12.7, -190.5, 0), App.Vector(12.7, -193.0527, 0)),
    Part.LineSegment(App.Vector(12.7, -193.0527, 0), App.Vector(-3.81, -193.0527, 0)),
    Part.LineSegment(App.Vector(-3.81, -193.0527, 0), App.Vector(-5.343817, -190.5, 0)),
], False)
sketch12.addGeometry(Part.LineSegment(App.Vector(12.7, -190.5, 0), App.Vector(-5.343817, -190.5, 0)), True)  # axis
sketch12.addConstraint([
    Sketcher.Constraint("Coincident", 0, 2, 1, 1),
    Sketcher.Constraint("Coincident", 1, 2, 2, 1),
    Sketcher.Constraint("Coincident", 2, 2, 3, 1),
    Sketcher.Constraint("Coincident", 3, 2, 0, 1),
    Sketcher.Constraint("Horizontal", 0),
    Sketcher.Constraint("Vertical", 1),
    Sketcher.Constraint("Horizontal", 2),
    Sketcher.Constraint("Horizontal", 4),
    Sketcher.Constraint("Coincident", 4, 1, 0, 2),
    Sketcher.Constraint("Equal", 0, 4),
    Sketcher.Constraint("Angle", 3, Q("121 deg")),
    Sketcher.Constraint("DistanceX", 2, 2, 2, 1, Q("0.65 in")),
    Sketcher.Constraint("DistanceX", -1, 1, 0, 2, Q("0.5 in")),
    Sketcher.Constraint("DistanceY", 0, 2, -1, 1, Q("7.5 in")),
    Sketcher.Constraint("DistanceY", 1, 2, 1, 1, Q("0.1005 in")),
])
groove11 = doc.addObject("PartDesign::Groove", "Groove010")
body.addObject(groove11)
groove11.Profile = sketch12
groove11.ReferenceAxis = (sketch12, ["Axis0"])
groove11.Angle = 360

doc.recompute()
